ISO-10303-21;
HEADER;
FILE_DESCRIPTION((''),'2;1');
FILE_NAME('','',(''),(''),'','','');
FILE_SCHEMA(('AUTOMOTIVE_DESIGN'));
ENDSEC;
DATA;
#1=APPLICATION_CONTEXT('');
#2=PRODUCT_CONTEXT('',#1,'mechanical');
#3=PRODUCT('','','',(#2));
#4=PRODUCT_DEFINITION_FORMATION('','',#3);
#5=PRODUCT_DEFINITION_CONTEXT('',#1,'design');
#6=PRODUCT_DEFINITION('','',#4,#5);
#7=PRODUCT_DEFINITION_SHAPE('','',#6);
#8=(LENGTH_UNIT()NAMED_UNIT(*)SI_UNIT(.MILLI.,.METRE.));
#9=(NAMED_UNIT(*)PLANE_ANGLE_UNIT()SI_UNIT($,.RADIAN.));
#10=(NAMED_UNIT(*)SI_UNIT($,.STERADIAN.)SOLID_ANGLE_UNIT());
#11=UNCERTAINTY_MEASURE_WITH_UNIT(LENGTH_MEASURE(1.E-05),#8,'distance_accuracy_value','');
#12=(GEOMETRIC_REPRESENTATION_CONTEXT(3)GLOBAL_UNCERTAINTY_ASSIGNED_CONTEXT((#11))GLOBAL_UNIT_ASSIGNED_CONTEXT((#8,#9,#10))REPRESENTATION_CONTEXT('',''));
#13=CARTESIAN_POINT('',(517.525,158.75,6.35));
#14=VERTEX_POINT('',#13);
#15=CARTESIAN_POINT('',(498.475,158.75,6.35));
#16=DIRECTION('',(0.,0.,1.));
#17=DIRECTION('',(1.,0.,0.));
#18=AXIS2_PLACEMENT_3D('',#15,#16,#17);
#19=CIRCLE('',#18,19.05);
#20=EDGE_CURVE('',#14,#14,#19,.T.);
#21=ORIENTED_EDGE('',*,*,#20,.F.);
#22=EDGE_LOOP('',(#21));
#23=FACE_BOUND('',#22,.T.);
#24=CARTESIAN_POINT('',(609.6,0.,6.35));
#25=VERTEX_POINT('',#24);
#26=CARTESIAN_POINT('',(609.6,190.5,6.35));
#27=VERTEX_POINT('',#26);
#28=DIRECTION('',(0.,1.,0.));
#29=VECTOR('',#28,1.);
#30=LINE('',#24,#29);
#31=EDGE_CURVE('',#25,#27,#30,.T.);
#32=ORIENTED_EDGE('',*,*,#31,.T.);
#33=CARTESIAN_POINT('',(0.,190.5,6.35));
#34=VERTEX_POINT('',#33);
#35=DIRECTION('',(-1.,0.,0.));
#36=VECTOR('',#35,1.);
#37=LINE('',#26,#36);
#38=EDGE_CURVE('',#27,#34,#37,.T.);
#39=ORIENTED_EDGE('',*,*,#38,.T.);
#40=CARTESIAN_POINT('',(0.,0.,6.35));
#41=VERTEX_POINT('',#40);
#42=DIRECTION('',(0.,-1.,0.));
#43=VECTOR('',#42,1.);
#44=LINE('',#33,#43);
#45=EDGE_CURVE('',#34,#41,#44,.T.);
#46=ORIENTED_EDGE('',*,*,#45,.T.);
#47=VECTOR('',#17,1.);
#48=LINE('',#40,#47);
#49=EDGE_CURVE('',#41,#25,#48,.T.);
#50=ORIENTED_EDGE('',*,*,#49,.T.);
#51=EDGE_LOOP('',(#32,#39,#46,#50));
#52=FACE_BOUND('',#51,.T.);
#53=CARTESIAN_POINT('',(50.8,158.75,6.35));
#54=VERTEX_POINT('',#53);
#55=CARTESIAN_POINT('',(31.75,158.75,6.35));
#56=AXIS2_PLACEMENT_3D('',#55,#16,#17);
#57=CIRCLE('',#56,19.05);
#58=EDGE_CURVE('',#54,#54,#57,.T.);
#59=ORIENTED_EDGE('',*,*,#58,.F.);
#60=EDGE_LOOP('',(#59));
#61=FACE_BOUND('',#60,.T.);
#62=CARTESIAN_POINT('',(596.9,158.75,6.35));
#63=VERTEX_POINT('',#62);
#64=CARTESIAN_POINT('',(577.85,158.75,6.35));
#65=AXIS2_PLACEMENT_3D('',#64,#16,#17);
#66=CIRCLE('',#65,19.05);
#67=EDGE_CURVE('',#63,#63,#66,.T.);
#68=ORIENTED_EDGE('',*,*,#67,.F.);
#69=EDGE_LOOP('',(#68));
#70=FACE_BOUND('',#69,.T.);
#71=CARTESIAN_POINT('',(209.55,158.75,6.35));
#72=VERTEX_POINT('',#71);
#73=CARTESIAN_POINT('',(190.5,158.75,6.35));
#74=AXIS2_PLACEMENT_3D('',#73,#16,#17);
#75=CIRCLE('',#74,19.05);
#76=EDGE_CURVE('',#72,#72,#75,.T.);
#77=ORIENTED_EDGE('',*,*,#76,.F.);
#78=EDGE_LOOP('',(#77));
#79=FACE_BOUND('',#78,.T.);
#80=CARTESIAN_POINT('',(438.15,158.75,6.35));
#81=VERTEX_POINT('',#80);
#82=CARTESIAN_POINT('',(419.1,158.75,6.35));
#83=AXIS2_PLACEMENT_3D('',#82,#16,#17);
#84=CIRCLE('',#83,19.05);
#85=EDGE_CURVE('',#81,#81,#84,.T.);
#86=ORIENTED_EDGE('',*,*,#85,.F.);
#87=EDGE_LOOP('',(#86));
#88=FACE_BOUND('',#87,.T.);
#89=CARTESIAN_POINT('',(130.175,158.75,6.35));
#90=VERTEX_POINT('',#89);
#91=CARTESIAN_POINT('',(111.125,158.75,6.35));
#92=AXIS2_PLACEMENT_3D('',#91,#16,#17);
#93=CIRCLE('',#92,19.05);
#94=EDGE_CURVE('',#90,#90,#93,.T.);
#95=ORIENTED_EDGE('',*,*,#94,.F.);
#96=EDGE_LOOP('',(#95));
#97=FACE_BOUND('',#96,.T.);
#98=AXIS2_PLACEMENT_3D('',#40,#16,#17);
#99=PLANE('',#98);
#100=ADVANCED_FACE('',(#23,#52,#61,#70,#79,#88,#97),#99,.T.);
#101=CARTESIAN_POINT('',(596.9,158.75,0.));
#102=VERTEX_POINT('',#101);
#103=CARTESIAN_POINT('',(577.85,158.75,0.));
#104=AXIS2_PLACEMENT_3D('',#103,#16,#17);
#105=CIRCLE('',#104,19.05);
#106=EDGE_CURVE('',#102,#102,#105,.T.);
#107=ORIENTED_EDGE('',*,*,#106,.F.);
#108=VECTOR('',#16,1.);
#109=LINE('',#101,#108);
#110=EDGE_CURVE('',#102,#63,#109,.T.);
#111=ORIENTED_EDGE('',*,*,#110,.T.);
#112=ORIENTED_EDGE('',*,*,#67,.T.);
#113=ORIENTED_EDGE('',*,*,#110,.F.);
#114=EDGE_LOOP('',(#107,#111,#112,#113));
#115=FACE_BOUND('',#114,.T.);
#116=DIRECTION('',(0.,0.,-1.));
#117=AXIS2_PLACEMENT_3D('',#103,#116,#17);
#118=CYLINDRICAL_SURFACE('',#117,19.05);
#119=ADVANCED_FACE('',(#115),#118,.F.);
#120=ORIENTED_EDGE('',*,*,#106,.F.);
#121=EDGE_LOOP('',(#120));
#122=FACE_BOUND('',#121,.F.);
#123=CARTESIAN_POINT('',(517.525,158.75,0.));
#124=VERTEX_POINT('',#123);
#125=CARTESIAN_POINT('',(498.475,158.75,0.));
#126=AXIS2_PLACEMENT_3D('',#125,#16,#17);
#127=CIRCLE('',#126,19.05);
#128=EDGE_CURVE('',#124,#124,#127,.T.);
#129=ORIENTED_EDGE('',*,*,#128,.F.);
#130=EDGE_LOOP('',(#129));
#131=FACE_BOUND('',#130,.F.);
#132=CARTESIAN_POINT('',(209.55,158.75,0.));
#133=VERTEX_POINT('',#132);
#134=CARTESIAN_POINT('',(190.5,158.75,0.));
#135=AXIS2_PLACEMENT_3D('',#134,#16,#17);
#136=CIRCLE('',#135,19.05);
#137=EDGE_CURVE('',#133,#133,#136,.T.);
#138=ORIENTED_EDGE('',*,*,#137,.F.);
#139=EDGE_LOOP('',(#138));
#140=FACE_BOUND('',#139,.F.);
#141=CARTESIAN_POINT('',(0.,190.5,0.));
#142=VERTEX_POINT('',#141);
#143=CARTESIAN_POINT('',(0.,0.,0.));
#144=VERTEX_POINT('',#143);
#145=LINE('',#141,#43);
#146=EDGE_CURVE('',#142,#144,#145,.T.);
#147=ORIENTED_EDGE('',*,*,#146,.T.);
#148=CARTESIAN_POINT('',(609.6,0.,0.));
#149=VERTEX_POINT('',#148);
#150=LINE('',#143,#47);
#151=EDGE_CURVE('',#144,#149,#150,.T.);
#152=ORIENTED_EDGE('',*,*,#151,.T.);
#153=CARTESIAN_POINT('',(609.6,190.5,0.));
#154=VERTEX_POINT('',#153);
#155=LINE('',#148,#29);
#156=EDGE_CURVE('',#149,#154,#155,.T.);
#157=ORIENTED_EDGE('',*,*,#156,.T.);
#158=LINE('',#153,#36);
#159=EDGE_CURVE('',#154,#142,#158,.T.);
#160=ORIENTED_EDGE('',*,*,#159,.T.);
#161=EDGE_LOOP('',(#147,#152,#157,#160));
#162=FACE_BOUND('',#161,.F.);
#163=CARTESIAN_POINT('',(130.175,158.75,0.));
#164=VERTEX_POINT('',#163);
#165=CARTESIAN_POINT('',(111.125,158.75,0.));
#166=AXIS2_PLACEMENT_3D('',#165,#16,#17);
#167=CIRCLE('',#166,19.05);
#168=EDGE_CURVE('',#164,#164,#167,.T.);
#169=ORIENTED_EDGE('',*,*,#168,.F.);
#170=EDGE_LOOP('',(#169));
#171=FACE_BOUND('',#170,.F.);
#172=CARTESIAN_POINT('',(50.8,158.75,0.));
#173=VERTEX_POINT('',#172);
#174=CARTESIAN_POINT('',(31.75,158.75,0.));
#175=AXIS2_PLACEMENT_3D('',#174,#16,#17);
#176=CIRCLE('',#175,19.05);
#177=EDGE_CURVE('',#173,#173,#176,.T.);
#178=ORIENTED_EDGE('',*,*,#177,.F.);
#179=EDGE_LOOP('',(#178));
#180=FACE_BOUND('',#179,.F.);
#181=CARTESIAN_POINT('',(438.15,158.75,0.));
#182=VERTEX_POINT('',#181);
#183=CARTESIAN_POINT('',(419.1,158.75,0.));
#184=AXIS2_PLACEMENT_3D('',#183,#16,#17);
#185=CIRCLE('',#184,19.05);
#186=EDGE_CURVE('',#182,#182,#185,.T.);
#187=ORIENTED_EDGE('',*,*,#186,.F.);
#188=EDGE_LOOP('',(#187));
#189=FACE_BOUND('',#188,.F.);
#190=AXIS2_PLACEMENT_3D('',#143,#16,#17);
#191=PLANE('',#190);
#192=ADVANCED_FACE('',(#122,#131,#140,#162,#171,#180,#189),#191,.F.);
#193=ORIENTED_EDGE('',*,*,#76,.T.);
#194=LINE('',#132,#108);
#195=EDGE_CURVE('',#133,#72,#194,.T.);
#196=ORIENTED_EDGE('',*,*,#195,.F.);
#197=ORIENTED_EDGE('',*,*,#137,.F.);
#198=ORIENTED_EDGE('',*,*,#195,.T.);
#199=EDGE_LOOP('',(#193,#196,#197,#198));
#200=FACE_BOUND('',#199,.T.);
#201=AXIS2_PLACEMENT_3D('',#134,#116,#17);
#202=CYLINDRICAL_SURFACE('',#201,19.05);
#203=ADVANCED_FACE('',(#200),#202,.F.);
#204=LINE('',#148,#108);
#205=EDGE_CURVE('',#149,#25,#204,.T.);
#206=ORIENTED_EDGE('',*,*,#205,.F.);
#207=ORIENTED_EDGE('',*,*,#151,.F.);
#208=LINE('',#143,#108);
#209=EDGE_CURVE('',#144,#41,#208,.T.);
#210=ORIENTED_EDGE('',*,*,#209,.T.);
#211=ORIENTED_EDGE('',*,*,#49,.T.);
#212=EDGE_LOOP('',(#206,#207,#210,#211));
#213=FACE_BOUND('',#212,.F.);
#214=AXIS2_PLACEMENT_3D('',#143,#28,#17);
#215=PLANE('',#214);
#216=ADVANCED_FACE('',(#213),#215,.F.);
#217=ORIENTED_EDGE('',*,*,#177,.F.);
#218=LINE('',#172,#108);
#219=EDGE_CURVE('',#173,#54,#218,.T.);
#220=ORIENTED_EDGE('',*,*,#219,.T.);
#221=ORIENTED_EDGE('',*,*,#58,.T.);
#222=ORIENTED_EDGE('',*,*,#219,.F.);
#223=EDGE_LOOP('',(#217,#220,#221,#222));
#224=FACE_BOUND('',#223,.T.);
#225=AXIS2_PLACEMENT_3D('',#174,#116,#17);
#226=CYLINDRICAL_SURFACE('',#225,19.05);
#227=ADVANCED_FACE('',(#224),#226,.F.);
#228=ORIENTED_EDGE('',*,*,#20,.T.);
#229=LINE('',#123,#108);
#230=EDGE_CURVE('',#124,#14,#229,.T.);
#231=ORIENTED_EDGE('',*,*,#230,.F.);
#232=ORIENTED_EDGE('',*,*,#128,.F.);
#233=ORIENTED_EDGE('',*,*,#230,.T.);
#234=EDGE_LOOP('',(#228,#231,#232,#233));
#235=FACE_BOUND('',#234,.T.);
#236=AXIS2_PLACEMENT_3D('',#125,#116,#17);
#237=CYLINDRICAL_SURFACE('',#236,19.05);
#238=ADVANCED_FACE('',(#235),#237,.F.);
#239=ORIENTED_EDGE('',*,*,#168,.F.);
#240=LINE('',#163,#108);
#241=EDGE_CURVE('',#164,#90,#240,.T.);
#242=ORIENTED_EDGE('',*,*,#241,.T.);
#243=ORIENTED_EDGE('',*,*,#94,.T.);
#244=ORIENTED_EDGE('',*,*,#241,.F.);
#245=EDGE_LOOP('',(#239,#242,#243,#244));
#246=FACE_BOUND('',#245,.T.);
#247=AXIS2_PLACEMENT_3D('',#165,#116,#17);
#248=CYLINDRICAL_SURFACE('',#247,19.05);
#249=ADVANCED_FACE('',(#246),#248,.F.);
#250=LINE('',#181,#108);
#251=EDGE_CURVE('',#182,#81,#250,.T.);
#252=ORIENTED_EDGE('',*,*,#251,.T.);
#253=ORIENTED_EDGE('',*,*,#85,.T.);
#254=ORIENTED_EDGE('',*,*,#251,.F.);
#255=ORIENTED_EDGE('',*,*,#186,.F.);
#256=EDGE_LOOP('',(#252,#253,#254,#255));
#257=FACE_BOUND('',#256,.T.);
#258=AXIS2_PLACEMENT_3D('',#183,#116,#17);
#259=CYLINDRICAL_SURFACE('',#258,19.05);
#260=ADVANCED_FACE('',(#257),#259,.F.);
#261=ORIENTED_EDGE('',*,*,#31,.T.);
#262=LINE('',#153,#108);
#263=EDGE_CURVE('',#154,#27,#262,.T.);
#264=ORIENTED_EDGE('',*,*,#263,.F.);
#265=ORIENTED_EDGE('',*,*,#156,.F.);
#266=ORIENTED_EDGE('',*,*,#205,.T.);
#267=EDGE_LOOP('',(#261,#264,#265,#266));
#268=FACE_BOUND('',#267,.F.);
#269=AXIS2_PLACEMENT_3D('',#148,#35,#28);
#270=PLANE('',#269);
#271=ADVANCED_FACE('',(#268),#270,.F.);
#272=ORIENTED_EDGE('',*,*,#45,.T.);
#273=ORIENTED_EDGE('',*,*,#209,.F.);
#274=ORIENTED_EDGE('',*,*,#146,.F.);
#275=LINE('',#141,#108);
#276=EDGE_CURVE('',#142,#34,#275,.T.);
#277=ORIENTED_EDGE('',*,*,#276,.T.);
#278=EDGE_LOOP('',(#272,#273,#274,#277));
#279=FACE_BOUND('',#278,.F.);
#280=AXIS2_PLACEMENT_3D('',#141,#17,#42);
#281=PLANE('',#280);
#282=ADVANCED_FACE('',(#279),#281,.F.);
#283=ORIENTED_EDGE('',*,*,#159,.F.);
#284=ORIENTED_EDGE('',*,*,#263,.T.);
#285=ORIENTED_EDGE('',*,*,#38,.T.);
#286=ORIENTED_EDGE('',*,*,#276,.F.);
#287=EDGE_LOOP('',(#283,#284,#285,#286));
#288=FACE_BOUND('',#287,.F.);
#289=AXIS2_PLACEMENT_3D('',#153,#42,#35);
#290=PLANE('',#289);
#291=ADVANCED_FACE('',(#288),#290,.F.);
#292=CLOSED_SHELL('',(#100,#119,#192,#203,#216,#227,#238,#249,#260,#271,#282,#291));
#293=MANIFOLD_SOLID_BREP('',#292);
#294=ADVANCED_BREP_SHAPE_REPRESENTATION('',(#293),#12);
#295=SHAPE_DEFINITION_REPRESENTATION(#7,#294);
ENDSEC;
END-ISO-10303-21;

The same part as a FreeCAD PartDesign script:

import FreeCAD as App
import Part
import Sketcher
Q = App.Units.Quantity

doc = App.newDocument("Part")
body = doc.addObject("PartDesign::Body", "Body")

sketch1 = doc.addObject("Sketcher::SketchObject", "Sketch")
body.addObject(sketch1)
sketch1.AttachmentSupport = (doc.XY_Plane, [""])
sketch1.MapMode = "FlatFace"
sketch1.addGeometry([
    Part.LineSegment(App.Vector(0, 190, 0), App.Vector(0, 0, 0)),
    Part.LineSegment(App.Vector(0, 0, 0), App.Vector(610, 0, 0)),
    Part.LineSegment(App.Vector(610, 0, 0), App.Vector(610, 190, 0)),
    Part.LineSegment(App.Vector(610, 190, 0), App.Vector(0, 190, 0)),
    Part.Circle(App.Vector(32, 159, 0), App.Vector(0, 0, 1), 19),
    Part.Circle(App.Vector(111, 159, 0), App.Vector(0, 0, 1), 19),
    Part.Circle(App.Vector(190, 159, 0), App.Vector(0, 0, 1), 19),
    Part.Circle(App.Vector(419, 159, 0), App.Vector(0, 0, 1), 19),
    Part.Circle(App.Vector(498, 159, 0), App.Vector(0, 0, 1), 19),
    Part.Circle(App.Vector(578, 159, 0), App.Vector(0, 0, 1), 19),
], False)
sketch1.addConstraint([
    Sketcher.Constraint("Coincident", 0, 2, 1, 1),
    Sketcher.Constraint("Coincident", 1, 2, 2, 1),
    Sketcher.Constraint("Coincident", 2, 2, 3, 1),
    Sketcher.Constraint("Coincident", 3, 2, 0, 1),
    Sketcher.Constraint("Vertical", 0),
    Sketcher.Constraint("Horizontal", 1),
    Sketcher.Constraint("Vertical", 2),
    Sketcher.Constraint("Horizontal", 3),
    Sketcher.Constraint("Coincident", 0, 2, -1, 1),
    Sketcher.Constraint("Equal", 4, 5),
    Sketcher.Constraint("Equal", 5, 6),
    Sketcher.Constraint("Equal", 6, 7),
    Sketcher.Constraint("Equal", 7, 8),
    Sketcher.Constraint("Equal", 8, 9),
    Sketcher.Constraint("Horizontal", 4, 3, 5, 3),
    Sketcher.Constraint("Horizontal", 5, 3, 6, 3),
    Sketcher.Constraint("Horizontal", 6, 3, 7, 3),
    Sketcher.Constraint("Horizontal", 7, 3, 8, 3),
    Sketcher.Constraint("Horizontal", 8, 3, 9, 3),
    Sketcher.Constraint("Diameter", 4, Q("1.5 in")),
    Sketcher.Constraint("DistanceX", 1, 1, 1, 2, Q("24 in")),
    Sketcher.Constraint("DistanceY", 0, 2, 0, 1, Q("7.5 in")),
    Sketcher.Constraint("DistanceX", 6, 3, 7, 3, Q("9 in")),
    Sketcher.Constraint("DistanceX", -1, 1, 6, 3, Q("7.5 in")),
    Sketcher.Constraint("DistanceX", -1, 1, 4, 3, Q("1.25 in")),
    Sketcher.Constraint("DistanceY", -1, 1, 4, 3, Q("6.25 in")),
    Sketcher.Constraint("DistanceX", 7, 3, 9, 3, Q("6.25 in")),
    Sketcher.Constraint("DistanceX", 4, 3, 5, 3, Q("3.125 in")),
    Sketcher.Constraint("DistanceX", 7, 3, 8, 3, Q("3.125 in")),
])
pad1 = doc.addObject("PartDesign::Pad", "Pad")
body.addObject(pad1)
pad1.Profile = sketch1
pad1.Length = Q("0.25 in")

doc.recompute()
